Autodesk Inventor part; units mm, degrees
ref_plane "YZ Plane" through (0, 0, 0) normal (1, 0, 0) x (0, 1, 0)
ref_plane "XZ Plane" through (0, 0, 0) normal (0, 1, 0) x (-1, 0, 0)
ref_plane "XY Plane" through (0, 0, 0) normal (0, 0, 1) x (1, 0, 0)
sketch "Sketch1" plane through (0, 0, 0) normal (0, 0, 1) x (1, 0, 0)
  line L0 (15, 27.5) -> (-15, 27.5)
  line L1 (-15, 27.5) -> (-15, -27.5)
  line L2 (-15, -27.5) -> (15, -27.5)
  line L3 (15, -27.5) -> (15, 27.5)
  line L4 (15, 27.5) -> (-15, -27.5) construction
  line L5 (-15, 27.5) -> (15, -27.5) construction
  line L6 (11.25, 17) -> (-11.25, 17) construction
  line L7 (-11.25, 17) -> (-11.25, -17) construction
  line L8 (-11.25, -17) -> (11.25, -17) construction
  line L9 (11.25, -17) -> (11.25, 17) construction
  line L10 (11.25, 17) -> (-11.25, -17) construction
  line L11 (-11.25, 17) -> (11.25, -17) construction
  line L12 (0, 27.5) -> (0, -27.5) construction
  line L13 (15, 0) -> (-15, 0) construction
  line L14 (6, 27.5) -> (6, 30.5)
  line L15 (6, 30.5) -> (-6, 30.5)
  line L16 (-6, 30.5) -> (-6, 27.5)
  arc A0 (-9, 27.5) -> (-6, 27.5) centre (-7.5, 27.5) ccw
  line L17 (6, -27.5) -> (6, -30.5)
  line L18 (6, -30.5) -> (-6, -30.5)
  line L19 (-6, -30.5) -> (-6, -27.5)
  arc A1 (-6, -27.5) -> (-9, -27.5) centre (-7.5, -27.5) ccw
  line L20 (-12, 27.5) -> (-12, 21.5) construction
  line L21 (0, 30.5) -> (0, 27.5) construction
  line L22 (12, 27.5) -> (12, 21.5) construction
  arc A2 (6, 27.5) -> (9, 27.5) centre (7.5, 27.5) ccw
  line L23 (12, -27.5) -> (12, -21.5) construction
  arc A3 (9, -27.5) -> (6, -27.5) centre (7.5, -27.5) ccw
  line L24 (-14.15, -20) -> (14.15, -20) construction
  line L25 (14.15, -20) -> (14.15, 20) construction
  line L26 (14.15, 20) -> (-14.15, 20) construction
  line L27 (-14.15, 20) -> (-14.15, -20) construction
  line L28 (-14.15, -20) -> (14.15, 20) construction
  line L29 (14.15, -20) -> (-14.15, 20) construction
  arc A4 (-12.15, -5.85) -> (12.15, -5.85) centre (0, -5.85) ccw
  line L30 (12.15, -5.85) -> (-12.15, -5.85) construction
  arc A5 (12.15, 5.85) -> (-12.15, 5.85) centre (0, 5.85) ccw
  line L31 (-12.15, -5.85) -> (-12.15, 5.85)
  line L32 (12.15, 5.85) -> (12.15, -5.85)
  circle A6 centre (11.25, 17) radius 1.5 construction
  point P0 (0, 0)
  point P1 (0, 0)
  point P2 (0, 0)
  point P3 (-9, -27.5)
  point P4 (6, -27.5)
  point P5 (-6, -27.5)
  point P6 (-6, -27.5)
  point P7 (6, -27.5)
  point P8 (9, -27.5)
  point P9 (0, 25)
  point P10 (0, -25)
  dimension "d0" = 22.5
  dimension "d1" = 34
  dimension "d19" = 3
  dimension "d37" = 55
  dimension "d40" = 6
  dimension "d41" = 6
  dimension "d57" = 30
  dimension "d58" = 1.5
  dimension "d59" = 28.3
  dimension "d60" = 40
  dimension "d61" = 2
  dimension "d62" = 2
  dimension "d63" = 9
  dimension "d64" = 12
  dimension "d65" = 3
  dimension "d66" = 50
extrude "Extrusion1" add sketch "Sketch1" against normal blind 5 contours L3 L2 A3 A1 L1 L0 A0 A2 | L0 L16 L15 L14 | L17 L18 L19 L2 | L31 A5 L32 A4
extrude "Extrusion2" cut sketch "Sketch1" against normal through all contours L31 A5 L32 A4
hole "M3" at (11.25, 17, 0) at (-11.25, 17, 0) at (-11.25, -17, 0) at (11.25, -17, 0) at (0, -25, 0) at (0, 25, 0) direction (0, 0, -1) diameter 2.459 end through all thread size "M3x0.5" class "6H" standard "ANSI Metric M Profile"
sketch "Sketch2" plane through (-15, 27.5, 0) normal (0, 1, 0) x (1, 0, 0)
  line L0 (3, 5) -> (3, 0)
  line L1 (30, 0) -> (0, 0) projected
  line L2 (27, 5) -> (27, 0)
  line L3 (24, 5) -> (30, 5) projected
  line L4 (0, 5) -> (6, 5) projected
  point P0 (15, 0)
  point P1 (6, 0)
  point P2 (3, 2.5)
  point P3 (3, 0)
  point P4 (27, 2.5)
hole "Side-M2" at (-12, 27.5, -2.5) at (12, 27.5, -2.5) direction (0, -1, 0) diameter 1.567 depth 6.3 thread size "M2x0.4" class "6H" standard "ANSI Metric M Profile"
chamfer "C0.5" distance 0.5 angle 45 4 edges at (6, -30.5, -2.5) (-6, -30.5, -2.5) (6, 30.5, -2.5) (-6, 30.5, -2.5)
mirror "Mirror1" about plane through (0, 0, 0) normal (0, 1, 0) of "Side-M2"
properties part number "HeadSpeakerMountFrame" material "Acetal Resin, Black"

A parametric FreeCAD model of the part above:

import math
import FreeCAD as App
import Part
import Sketcher

V = App.Vector
Q = App.Units.Quantity


def edges_at(feature, points):
    """Names of the edges that pass closest to the given points."""
    edges = feature.Shape.Edges
    near = lambda p: min(range(len(edges)), key=lambda i: edges[i].distToShape(Part.Vertex(*p))[0])
    return sorted({f"Edge{near(p) + 1}" for p in points})

doc = App.newDocument("Part")
body = doc.addObject("PartDesign::Body", "Body")

sketch1 = body.newObject("Sketcher::SketchObject", "Sketch")
sketch1.AttachmentSupport = (doc.getObject("XY_Plane"), [""])
sketch1.MapMode = "FlatFace"
sketch1.addGeometry(Part.LineSegment(V(15, -27.5, 0), V(15, 27.5, 0)), False)
sketch1.addGeometry(Part.LineSegment(V(15, 27.5, 0), V(9, 27.5, 0)), False)
sketch1.addGeometry(Part.ArcOfCircle(Part.Circle(V(7.5, 27.5, 0), V(0, 0, 1), 1.5), math.radians(180), math.radians(360)), False)
sketch1.addGeometry(Part.LineSegment(V(6, 27.5, 0), V(6, 30.5, 0)), False)
sketch1.addGeometry(Part.LineSegment(V(6, 30.5, 0), V(-6, 30.5, 0)), False)
sketch1.addGeometry(Part.LineSegment(V(-6, 30.5, 0), V(-6, 27.5, 0)), False)
sketch1.addGeometry(Part.ArcOfCircle(Part.Circle(V(-7.5, 27.5, 0), V(0, 0, 1), 1.5), math.radians(180), math.radians(360)), False)
sketch1.addGeometry(Part.LineSegment(V(-9, 27.5, 0), V(-15, 27.5, 0)), False)
sketch1.addGeometry(Part.LineSegment(V(-15, 27.5, 0), V(-15, -27.5, 0)), False)
sketch1.addGeometry(Part.LineSegment(V(-15, -27.5, 0), V(-9, -27.5, 0)), False)
sketch1.addGeometry(Part.ArcOfCircle(Part.Circle(V(-7.5, -27.5, 0), V(0, 0, 1), 1.5), math.radians(0), math.radians(180)), False)
sketch1.addGeometry(Part.LineSegment(V(-6, -27.5, 0), V(-6, -30.5, 0)), False)
sketch1.addGeometry(Part.LineSegment(V(-6, -30.5, 0), V(6, -30.5, 0)), False)
sketch1.addGeometry(Part.LineSegment(V(6, -30.5, 0), V(6, -27.5, 0)), False)
sketch1.addGeometry(Part.ArcOfCircle(Part.Circle(V(7.5, -27.5, 0), V(0, 0, 1), 1.5), math.radians(0), math.radians(180)), False)
sketch1.addGeometry(Part.LineSegment(V(9, -27.5, 0), V(15, -27.5, 0)), False)
sketch1.addConstraint(Sketcher.Constraint("Coincident", 0, 2, 1, 1))
sketch1.addConstraint(Sketcher.Constraint("Coincident", 1, 2, 2, 2))
sketch1.addConstraint(Sketcher.Constraint("Tangent", 2, 1, 3, 1))
sketch1.addConstraint(Sketcher.Constraint("Coincident", 3, 2, 4, 1))
sketch1.addConstraint(Sketcher.Constraint("Coincident", 4, 2, 5, 1))
sketch1.addConstraint(Sketcher.Constraint("Tangent", 5, 2, 6, 2))
sketch1.addConstraint(Sketcher.Constraint("Coincident", 6, 1, 7, 1))
sketch1.addConstraint(Sketcher.Constraint("Coincident", 7, 2, 8, 1))
sketch1.addConstraint(Sketcher.Constraint("Coincident", 8, 2, 9, 1))
sketch1.addConstraint(Sketcher.Constraint("Coincident", 9, 2, 10, 2))
sketch1.addConstraint(Sketcher.Constraint("Tangent", 10, 1, 11, 1))
sketch1.addConstraint(Sketcher.Constraint("Coincident", 11, 2, 12, 1))
sketch1.addConstraint(Sketcher.Constraint("Coincident", 12, 2, 13, 1))
sketch1.addConstraint(Sketcher.Constraint("Tangent", 13, 2, 14, 2))
sketch1.addConstraint(Sketcher.Constraint("Coincident", 14, 1, 15, 1))
sketch1.addConstraint(Sketcher.Constraint("Coincident", 15, 2, 0, 1))
sketch1.addConstraint(Sketcher.Constraint("Vertical", 0))
sketch1.addConstraint(Sketcher.Constraint("Horizontal", 1))
sketch1.addConstraint(Sketcher.Constraint("Vertical", 3))
sketch1.addConstraint(Sketcher.Constraint("Horizontal", 4))
sketch1.addConstraint(Sketcher.Constraint("Vertical", 5))
sketch1.addConstraint(Sketcher.Constraint("Horizontal", 7))
sketch1.addConstraint(Sketcher.Constraint("Vertical", 8))
sketch1.addConstraint(Sketcher.Constraint("Horizontal", 9))
sketch1.addConstraint(Sketcher.Constraint("Vertical", 11))
sketch1.addConstraint(Sketcher.Constraint("Horizontal", 12))
sketch1.addConstraint(Sketcher.Constraint("Vertical", 13))
sketch1.addConstraint(Sketcher.Constraint("Horizontal", 15))
sketch1.addConstraint(Sketcher.Constraint("Equal", 2, 6))
sketch1.addConstraint(Sketcher.Constraint("Equal", 6, 10))
sketch1.addConstraint(Sketcher.Constraint("Equal", 10, 14))
sketch1.addConstraint(Sketcher.Constraint("Symmetric", 2, 3, 10, 3, -1, 1))
sketch1.addConstraint(Sketcher.Constraint("Symmetric", 6, 3, 14, 3, -1, 1))
sketch1.addConstraint(Sketcher.Constraint("Symmetric", 0, 2, 8, 2, -1, 1))
sketch1.addConstraint(Sketcher.Constraint("Symmetric", 2, 3, 6, 3, -2))
sketch1.addConstraint(Sketcher.Constraint("Horizontal", 6, 3, 0, 2))
sketch1.addConstraint(Sketcher.Constraint("Horizontal", 5, 2, 6, 1))
sketch1.addConstraint(Sketcher.Constraint("Horizontal", 13, 2, 14, 1))
sketch1.addConstraint(Sketcher.Constraint("Equal", 5, 11))
sketch1.addConstraint(Sketcher.Constraint("Radius", 2, Q("1.5 mm")))
sketch1.addConstraint(Sketcher.Constraint("DistanceX", 1, 2, 1, 1, Q("6 mm")))
sketch1.addConstraint(Sketcher.Constraint("DistanceX", 4, 2, 4, 1, Q("12 mm")))
sketch1.addConstraint(Sketcher.Constraint("DistanceY", 0, 1, 0, 2, Q("55 mm")))
sketch1.addConstraint(Sketcher.Constraint("DistanceY", 3, 1, 3, 2, Q("3 mm")))
pad1 = body.newObject("PartDesign::Pad", "Pad")
pad1.Profile = sketch1
pad1.Length = 5
pad1.Reversed = True

sketch2 = body.newObject("Sketcher::SketchObject", "Sketch001")
sketch2.AttachmentSupport = (doc.getObject("XY_Plane"), [""])
sketch2.MapMode = "FlatFace"
sketch2.addGeometry(Part.LineSegment(V(-12, 6, 0), V(-12, -6, 0)), False)
sketch2.addGeometry(Part.ArcOfCircle(Part.Circle(V(0, -6, 0), V(0, 0, 1), 12), math.radians(180), math.radians(360)), False)
sketch2.addGeometry(Part.LineSegment(V(12, -6, 0), V(12, 6, 0)), False)
sketch2.addGeometry(Part.ArcOfCircle(Part.Circle(V(0, 6, 0), V(0, 0, 1), 12), math.radians(0), math.radians(180)), False)
sketch2.addConstraint(Sketcher.Constraint("Tangent", 0, 2, 1, 1))
sketch2.addConstraint(Sketcher.Constraint("Tangent", 1, 2, 2, 1))
sketch2.addConstraint(Sketcher.Constraint("Tangent", 2, 2, 3, 1))
sketch2.addConstraint(Sketcher.Constraint("Tangent", 3, 2, 0, 1))
sketch2.addConstraint(Sketcher.Constraint("Vertical", 0))
sketch2.addConstraint(Sketcher.Constraint("Vertical", 2))
sketch2.addConstraint(Sketcher.Constraint("Symmetric", 1, 3, 3, 3, -1, 1))
sketch2.addConstraint(Sketcher.Constraint("Radius", 1, Q("12.15 mm")))
sketch2.addConstraint(Sketcher.Constraint("DistanceY", 0, 2, 0, 1, Q("11.7 mm")))
pocket1 = body.newObject("PartDesign::Pocket", "Pocket")
pocket1.Profile = sketch2
pocket1.Type = "ThroughAll"

sketch3 = body.newObject("Sketcher::SketchObject", "Sketch002")
sketch3.AttachmentSupport = (doc.getObject("XY_Plane"), [""])
sketch3.MapMode = "FlatFace"
sketch3.addGeometry(Part.Circle(V(11.2, 17, 0), V(0, 0, 1), 1.2), False)
sketch3.addGeometry(Part.Circle(V(-11.2, 17, 0), V(0, 0, 1), 1.2), False)
sketch3.addGeometry(Part.Circle(V(-11.2, -17, 0), V(0, 0, 1), 1.2), False)
sketch3.addGeometry(Part.Circle(V(11.2, -17, 0), V(0, 0, 1), 1.2), False)
sketch3.addGeometry(Part.Circle(V(0, -25, 0), V(0, 0, 1), 1.2), False)
sketch3.addGeometry(Part.Circle(V(0, 25, 0), V(0, 0, 1), 1.2), False)
sketch3.addConstraint(Sketcher.Constraint("Equal", 0, 1))
sketch3.addConstraint(Sketcher.Constraint("Equal", 1, 2))
sketch3.addConstraint(Sketcher.Constraint("Equal", 2, 3))
sketch3.addConstraint(Sketcher.Constraint("Equal", 3, 4))
sketch3.addConstraint(Sketcher.Constraint("Equal", 4, 5))
sketch3.addConstraint(Sketcher.Constraint("Symmetric", 0, 3, 2, 3, -1, 1))
sketch3.addConstraint(Sketcher.Constraint("Symmetric", 1, 3, 3, 3, -1, 1))
sketch3.addConstraint(Sketcher.Constraint("Symmetric", 4, 3, 5, 3, -1, 1))
sketch3.addConstraint(Sketcher.Constraint("Symmetric", 0, 3, 1, 3, -2))
sketch3.addConstraint(Sketcher.Constraint("PointOnObject", 4, 3, -2))
sketch3.addConstraint(Sketcher.Constraint("Diameter", 0, Q("2.459 mm")))
sketch3.addConstraint(Sketcher.Constraint("DistanceY", -1, 1, 0, 3, Q("17 mm")))
sketch3.addConstraint(Sketcher.Constraint("DistanceY", 4, 3, -1, 1, Q("25 mm")))
sketch3.addConstraint(Sketcher.Constraint("DistanceX", 1, 3, 0, 3, Q("22.5 mm")))
doc.recompute()
hole = body.newObject("PartDesign::Hole", "Hole")
hole.Profile = sketch3
hole.ThreadType = "None"
hole.Diameter = 2.459
hole.DepthType = "ThroughAll"

sketch4 = body.newObject("Sketcher::SketchObject", "Sketch003")
sketch4.AttachmentSupport = (doc.getObject("XZ_Plane"), [""])
sketch4.MapMode = "FlatFace"
sketch4.AttachmentOffset = App.Placement(V(0, 0, -27.5), App.Rotation())
sketch4.addGeometry(Part.Circle(V(-12, -2.5, 0), V(0, 0, 1), 0.8), False)
sketch4.addGeometry(Part.Circle(V(12, -2.5, 0), V(0, 0, 1), 0.8), False)
sketch4.addConstraint(Sketcher.Constraint("Equal", 0, 1))
sketch4.addConstraint(Sketcher.Constraint("Symmetric", 0, 3, 1, 3, -2))
sketch4.addConstraint(Sketcher.Constraint("Diameter", 0, Q("1.567 mm")))
sketch4.addConstraint(Sketcher.Constraint("DistanceX", 0, 3, -1, 1, Q("12 mm")))
sketch4.addConstraint(Sketcher.Constraint("DistanceY", 0, 3, -1, 1, Q("2.5 mm")))
doc.recompute()
hole2 = body.newObject("PartDesign::Hole", "Hole001")
hole2.Profile = sketch4
hole2.ThreadType = "None"
hole2.Diameter = 1.567
hole2.DepthType = "Dimension"
hole2.Depth = 6.3
hole2.DrillPoint = "Flat"
hole2.Reversed = True
doc.recompute()

chamfer = body.newObject("PartDesign::Chamfer", "Chamfer")
chamfer.Base = (hole2, edges_at(hole2, [
    (6, -30.5, -2.5),
    (-6, -30.5, -2.5),
    (6, 30.5, -2.5),
    (-6, 30.5, -2.5),
]))
chamfer.Size = 0.5
doc.recompute()

mirrored = body.newObject("PartDesign::Mirrored", "Mirrored")
mirrored.Originals = [hole2]
mirrored.MirrorPlane = (doc.getObject("XZ_Plane"), [""])
body.Tip = mirrored

doc.recompute()
